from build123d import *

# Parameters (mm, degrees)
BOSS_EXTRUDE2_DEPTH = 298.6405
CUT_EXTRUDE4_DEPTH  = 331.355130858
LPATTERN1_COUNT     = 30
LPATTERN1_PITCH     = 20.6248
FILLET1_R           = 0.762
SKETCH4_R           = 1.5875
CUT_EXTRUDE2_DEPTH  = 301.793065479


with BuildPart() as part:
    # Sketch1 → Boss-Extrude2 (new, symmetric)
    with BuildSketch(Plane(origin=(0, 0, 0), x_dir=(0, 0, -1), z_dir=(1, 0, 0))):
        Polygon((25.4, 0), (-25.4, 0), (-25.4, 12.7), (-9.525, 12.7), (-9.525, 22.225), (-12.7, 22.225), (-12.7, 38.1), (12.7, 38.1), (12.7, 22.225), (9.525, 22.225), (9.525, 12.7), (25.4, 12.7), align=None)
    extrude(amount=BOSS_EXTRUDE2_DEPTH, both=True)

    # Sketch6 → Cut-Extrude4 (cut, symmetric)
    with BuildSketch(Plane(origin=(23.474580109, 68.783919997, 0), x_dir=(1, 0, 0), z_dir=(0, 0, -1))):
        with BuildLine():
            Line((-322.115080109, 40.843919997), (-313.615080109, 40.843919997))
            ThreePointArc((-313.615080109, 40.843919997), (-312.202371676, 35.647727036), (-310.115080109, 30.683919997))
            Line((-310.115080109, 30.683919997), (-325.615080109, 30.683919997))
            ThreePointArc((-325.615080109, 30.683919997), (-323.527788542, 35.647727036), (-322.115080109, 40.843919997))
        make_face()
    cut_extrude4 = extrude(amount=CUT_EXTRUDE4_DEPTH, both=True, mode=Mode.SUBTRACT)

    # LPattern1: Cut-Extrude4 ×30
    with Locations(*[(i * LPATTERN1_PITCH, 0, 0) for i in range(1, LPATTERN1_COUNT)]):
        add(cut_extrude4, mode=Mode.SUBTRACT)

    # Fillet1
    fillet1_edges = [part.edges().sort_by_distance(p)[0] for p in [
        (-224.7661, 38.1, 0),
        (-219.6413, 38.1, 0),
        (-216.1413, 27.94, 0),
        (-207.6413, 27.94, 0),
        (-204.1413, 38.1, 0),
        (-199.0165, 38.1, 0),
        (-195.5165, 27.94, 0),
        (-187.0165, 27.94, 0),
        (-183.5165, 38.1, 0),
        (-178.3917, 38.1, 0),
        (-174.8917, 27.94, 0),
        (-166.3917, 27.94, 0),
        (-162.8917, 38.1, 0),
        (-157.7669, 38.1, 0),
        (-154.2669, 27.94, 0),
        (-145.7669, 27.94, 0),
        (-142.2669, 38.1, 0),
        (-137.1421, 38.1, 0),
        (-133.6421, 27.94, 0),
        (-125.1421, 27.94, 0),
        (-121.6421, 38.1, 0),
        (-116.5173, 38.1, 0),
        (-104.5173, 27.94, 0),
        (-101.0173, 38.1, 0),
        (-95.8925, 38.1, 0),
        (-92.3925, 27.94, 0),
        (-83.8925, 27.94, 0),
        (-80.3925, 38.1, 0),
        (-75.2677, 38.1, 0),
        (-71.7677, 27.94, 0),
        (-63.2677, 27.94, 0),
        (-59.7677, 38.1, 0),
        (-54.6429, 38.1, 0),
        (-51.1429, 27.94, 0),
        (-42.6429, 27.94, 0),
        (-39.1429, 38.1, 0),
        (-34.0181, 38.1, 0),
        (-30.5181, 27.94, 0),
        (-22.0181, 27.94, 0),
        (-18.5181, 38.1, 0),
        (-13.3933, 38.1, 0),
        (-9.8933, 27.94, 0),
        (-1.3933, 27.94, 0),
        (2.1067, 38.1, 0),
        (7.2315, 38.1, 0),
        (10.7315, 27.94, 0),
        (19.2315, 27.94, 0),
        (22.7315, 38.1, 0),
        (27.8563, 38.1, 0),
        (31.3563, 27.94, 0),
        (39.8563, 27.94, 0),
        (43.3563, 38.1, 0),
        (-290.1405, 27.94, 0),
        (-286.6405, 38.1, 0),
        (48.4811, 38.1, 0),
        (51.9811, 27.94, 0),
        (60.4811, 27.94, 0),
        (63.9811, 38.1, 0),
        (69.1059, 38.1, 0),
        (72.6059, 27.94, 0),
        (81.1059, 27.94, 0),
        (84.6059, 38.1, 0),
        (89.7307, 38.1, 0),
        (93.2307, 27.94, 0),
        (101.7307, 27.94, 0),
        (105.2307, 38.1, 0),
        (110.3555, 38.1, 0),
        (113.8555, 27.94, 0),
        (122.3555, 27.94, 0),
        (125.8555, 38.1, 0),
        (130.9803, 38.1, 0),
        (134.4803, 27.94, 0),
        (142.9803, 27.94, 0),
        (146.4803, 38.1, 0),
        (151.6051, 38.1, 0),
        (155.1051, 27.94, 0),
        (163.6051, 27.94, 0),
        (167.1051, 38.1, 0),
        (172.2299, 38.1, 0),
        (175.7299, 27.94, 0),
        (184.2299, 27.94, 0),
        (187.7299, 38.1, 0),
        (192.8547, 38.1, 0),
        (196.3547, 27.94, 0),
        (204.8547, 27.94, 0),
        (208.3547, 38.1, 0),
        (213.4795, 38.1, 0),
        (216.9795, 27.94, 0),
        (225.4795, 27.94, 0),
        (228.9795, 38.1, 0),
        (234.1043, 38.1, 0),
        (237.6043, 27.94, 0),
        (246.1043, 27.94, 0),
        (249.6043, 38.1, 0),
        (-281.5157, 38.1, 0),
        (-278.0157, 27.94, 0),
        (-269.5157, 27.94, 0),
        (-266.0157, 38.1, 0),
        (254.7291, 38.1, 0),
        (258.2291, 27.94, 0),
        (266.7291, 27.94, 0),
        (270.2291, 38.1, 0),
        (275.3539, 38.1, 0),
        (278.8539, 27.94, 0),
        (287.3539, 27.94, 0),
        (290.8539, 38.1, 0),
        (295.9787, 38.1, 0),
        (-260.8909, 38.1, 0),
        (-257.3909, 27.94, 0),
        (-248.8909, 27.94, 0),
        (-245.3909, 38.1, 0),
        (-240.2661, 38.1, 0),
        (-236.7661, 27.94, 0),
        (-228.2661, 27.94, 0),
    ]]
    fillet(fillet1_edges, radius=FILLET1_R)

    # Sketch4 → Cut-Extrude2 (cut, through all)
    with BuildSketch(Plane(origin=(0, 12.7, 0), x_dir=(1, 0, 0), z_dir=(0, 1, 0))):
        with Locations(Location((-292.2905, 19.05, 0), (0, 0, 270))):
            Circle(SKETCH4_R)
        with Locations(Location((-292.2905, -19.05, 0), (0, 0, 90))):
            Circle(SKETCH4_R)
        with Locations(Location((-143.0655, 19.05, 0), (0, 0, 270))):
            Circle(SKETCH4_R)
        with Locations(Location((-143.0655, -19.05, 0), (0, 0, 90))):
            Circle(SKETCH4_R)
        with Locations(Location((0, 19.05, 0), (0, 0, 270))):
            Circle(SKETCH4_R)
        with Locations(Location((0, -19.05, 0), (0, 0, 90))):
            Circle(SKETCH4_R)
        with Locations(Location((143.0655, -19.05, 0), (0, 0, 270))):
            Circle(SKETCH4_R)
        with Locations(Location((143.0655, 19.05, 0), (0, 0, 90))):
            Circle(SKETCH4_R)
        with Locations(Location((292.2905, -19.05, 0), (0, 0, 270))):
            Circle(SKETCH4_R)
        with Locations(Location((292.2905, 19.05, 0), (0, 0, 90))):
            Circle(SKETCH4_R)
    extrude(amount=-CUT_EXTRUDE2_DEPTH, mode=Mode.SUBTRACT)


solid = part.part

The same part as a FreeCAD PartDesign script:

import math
import FreeCAD as App
import Part
import Sketcher
Q = App.Units.Quantity


def edges_at(feature, points):
    """Names of the edges that pass closest to the given points."""
    edges = feature.Shape.Edges
    near = lambda p: min(range(len(edges)), key=lambda i: edges[i].distToShape(Part.Vertex(*p))[0])
    return sorted({f"Edge{near(p) + 1}" for p in points})


def add_polygon(sketch, points):
    """Adds a closed chain of lines whose ends are joined by coincident constraints."""
    first, n = sketch.GeometryCount, len(points)
    for a, b in zip(points, points[1:] + points[:1]):
        sketch.addGeometry(Part.LineSegment(App.Vector(*a, 0), App.Vector(*b, 0)), False)
    for i in range(n):
        sketch.addConstraint(Sketcher.Constraint("Coincident", first + i, 2, first + (i + 1) % n, 1))

doc = App.newDocument("Part")
body = doc.addObject("PartDesign::Body", "Body")

sketch1 = doc.addObject("Sketcher::SketchObject", "Sketch")
body.addObject(sketch1)
sketch1.AttachmentSupport = (doc.YZ_Plane, [""])
sketch1.MapMode = "FlatFace"
add_polygon(sketch1, [(0, 25.4), (0, -25.4), (12.7, -25.4), (12.7, -9.525), (22.225, -9.525), (22.225, -12.7), (38.1, -12.7), (38.1, 12.7), (22.225, 12.7), (22.225, 9.525), (12.7, 9.525), (12.7, 25.4)])
sketch1.addConstraint(Sketcher.Constraint("Vertical", 0))
sketch1.addConstraint(Sketcher.Constraint("Horizontal", 1))
sketch1.addConstraint(Sketcher.Constraint("Vertical", 2))
sketch1.addConstraint(Sketcher.Constraint("Horizontal", 3))
sketch1.addConstraint(Sketcher.Constraint("Vertical", 4))
sketch1.addConstraint(Sketcher.Constraint("Horizontal", 5))
sketch1.addConstraint(Sketcher.Constraint("Vertical", 6))
sketch1.addConstraint(Sketcher.Constraint("Horizontal", 7))
sketch1.addConstraint(Sketcher.Constraint("Vertical", 8))
sketch1.addConstraint(Sketcher.Constraint("Horizontal", 9))
sketch1.addConstraint(Sketcher.Constraint("Vertical", 10))
sketch1.addConstraint(Sketcher.Constraint("Horizontal", 11))
sketch1.addConstraint(Sketcher.Constraint("Symmetric", 0, 2, 11, 2, -1, 1))
sketch1.addConstraint(Sketcher.Constraint("Symmetric", 4, 2, 7, 2, -1))
sketch1.addConstraint(Sketcher.Constraint("Symmetric", 2, 2, 9, 2, -1))
sketch1.addConstraint(Sketcher.Constraint("Equal", 7, 2))
sketch1.addConstraint(Sketcher.Constraint("DistanceY", 0, 2, 0, 1, Q("2 in")))
sketch1.addConstraint(Sketcher.Constraint("DistanceY", 6, 1, 6, 2, Q("1 in")))
sketch1.addConstraint(Sketcher.Constraint("DistanceX", 1, 1, 1, 2, Q("0.5 in")))
sketch1.addConstraint(Sketcher.Constraint("DistanceX", 2, 2, 5, 2, Q("1 in")))
sketch1.addConstraint(Sketcher.Constraint("DistanceX", 3, 1, 3, 2, Q("0.375 in")))
pad1 = doc.addObject("PartDesign::Pad", "Pad")
body.addObject(pad1)
pad1.Profile = sketch1
pad1.Length = Q("23.515 in")
pad1.Midplane = True

sketch2 = doc.addObject("Sketcher::SketchObject", "Sketch001")
body.addObject(sketch2)
sketch2.AttachmentSupport = (doc.XY_Plane, [""])
sketch2.MapMode = "FlatFace"
sketch2.addGeometry(Part.LineSegment(App.Vector(-290.1405, 27.94, 0), App.Vector(-298.6405, 27.94, 0)), False)
sketch2.addGeometry(Part.ArcOfCircle(Part.Circle(App.Vector(-338.477184, 19.899587, 0), App.Vector(0, 0, 1), 40.64), math.radians(11.410957), math.radians(26.605492)), False)
sketch2.addGeometry(Part.LineSegment(App.Vector(-302.1405, 38.1, 0), App.Vector(-286.6405, 38.1, 0)), False)
sketch2.addGeometry(Part.ArcOfCircle(Part.Circle(App.Vector(-250.303816, 19.899587, 0), App.Vector(0, 0, 1), 40.64), math.radians(153.394508), math.radians(168.589043)), False)
sketch2.addConstraint(Sketcher.Constraint("Coincident", 0, 2, 1, 1))
sketch2.addConstraint(Sketcher.Constraint("Coincident", 1, 2, 2, 1))
sketch2.addConstraint(Sketcher.Constraint("Coincident", 2, 2, 3, 1))
sketch2.addConstraint(Sketcher.Constraint("Coincident", 3, 2, 0, 1))
sketch2.addConstraint(Sketcher.Constraint("Horizontal", 0))
sketch2.addConstraint(Sketcher.Constraint("Horizontal", 2))
sketch2.addConstraint(Sketcher.Constraint("Equal", 1, 3))
sketch2.addConstraint(Sketcher.Constraint("Horizontal", 1, 3, 3, 3))
sketch2.addConstraint(Sketcher.Constraint("Radius", 1, Q("1.6 in")))
sketch2.addConstraint(Sketcher.Constraint("DistanceY", -1, 1, 0, 2, Q("1.1 in")))
sketch2.addConstraint(Sketcher.Constraint("DistanceY", -1, 1, 1, 2, Q("1.5 in")))
sketch2.addConstraint(Sketcher.Constraint("DistanceX", 0, 2, 0, 1, Q("8.5 mm")))
sketch2.addConstraint(Sketcher.Constraint("DistanceX", 2, 1, 2, 2, Q("15.5 mm")))
sketch2.addConstraint(Sketcher.Constraint("DistanceX", 0, 2, -1, 1, Q("11.7575 in")))
pocket1 = doc.addObject("PartDesign::Pocket", "Pocket")
body.addObject(pocket1)
pocket1.Profile = sketch2
pocket1.Length = 662.710262
pocket1.Midplane = True
doc.recompute()

linearpattern = doc.addObject("PartDesign::LinearPattern", "LinearPattern")
body.addObject(linearpattern)
linearpattern.Originals = [pocket1]
linearpattern.Direction = (doc.X_Axis, [""])
linearpattern.Mode = "offset"
linearpattern.Offset = Q("0.812 in")
linearpattern.Occurrences = 30
body.Tip = linearpattern
doc.recompute()

fillet = doc.addObject("PartDesign::Fillet", "Fillet")
body.addObject(fillet)
fillet.Base = (linearpattern, edges_at(linearpattern, [
    (-224.766, 38.1, 0),
    (-219.641, 38.1, 0),
    (-216.141, 27.94, 0),
    (-207.641, 27.94, 0),
    (-204.141, 38.1, 0),
    (-199.017, 38.1, 0),
    (-195.517, 27.94, 0),
    (-187.017, 27.94, 0),
    (-183.517, 38.1, 0),
    (-178.392, 38.1, 0),
    (-174.892, 27.94, 0),
    (-166.392, 27.94, 0),
    (-162.892, 38.1, 0),
    (-157.767, 38.1, 0),
    (-154.267, 27.94, 0),
    (-145.767, 27.94, 0),
    (-142.267, 38.1, 0),
    (-137.142, 38.1, 0),
    (-133.642, 27.94, 0),
    (-125.142, 27.94, 0),
    (-121.642, 38.1, 0),
    (-116.517, 38.1, 0),
    (-104.517, 27.94, 0),
    (-101.017, 38.1, 0),
    (-95.892, 38.1, 0),
    (-92.392, 27.94, 0),
    (-83.892, 27.94, 0),
    (-80.392, 38.1, 0),
    (-75.268, 38.1, 0),
    (-71.768, 27.94, 0),
    (-63.268, 27.94, 0),
    (-59.768, 38.1, 0),
    (-54.643, 38.1, 0),
    (-51.143, 27.94, 0),
    (-42.643, 27.94, 0),
    (-39.143, 38.1, 0),
    (-34.018, 38.1, 0),
    (-30.518, 27.94, 0),
    (-22.018, 27.94, 0),
    (-18.518, 38.1, 0),
    (-13.393, 38.1, 0),
    (-9.893, 27.94, 0),
    (-1.393, 27.94, 0),
    (2.107, 38.1, 0),
    (7.231, 38.1, 0),
    (10.732, 27.94, 0),
    (19.232, 27.94, 0),
    (22.732, 38.1, 0),
    (27.856, 38.1, 0),
    (31.356, 27.94, 0),
    (39.856, 27.94, 0),
    (43.356, 38.1, 0),
    (-290.14, 27.94, 0),
    (-286.64, 38.1, 0),
    (48.481, 38.1, 0),
    (51.981, 27.94, 0),
    (60.481, 27.94, 0),
    (63.981, 38.1, 0),
    (69.106, 38.1, 0),
    (72.606, 27.94, 0),
    (81.106, 27.94, 0),
    (84.606, 38.1, 0),
    (89.731, 38.1, 0),
    (93.231, 27.94, 0),
    (101.731, 27.94, 0),
    (105.231, 38.1, 0),
    (110.356, 38.1, 0),
    (113.856, 27.94, 0),
    (122.356, 27.94, 0),
    (125.856, 38.1, 0),
    (130.98, 38.1, 0),
    (134.48, 27.94, 0),
    (142.98, 27.94, 0),
    (146.48, 38.1, 0),
    (151.605, 38.1, 0),
    (155.105, 27.94, 0),
    (163.605, 27.94, 0),
    (167.105, 38.1, 0),
    (172.23, 38.1, 0),
    (175.73, 27.94, 0),
    (184.23, 27.94, 0),
    (187.73, 38.1, 0),
    (192.855, 38.1, 0),
    (196.355, 27.94, 0),
    (204.855, 27.94, 0),
    (208.355, 38.1, 0),
    (213.48, 38.1, 0),
    (216.98, 27.94, 0),
    (225.48, 27.94, 0),
    (228.98, 38.1, 0),
    (234.104, 38.1, 0),
    (237.604, 27.94, 0),
    (246.104, 27.94, 0),
    (249.604, 38.1, 0),
    (-281.516, 38.1, 0),
    (-278.016, 27.94, 0),
    (-269.516, 27.94, 0),
    (-266.016, 38.1, 0),
    (254.729, 38.1, 0),
    (258.229, 27.94, 0),
    (266.729, 27.94, 0),
    (270.229, 38.1, 0),
    (275.354, 38.1, 0),
    (278.854, 27.94, 0),
    (287.354, 27.94, 0),
    (290.854, 38.1, 0),
    (295.979, 38.1, 0),
    (-260.891, 38.1, 0),
    (-257.391, 27.94, 0),
    (-248.891, 27.94, 0),
    (-245.391, 38.1, 0),
    (-240.266, 38.1, 0),
    (-236.766, 27.94, 0),
    (-228.266, 27.94, 0),
]))
fillet.Radius = Q("0.03 in")

sketch3 = doc.addObject("Sketcher::SketchObject", "Sketch002")
body.addObject(sketch3)
sketch3.AttachmentSupport = (doc.XZ_Plane, [""])
sketch3.MapMode = "FlatFace"
sketch3.AttachmentOffset = App.Placement(App.Vector(0, 0, -0.5 * 25.4), App.Rotation())
sketch3.addGeometry(Part.Circle(App.Vector(-292.2905, -19.05, 0), App.Vector(0, 0, 1), 1.5875), False)
sketch3.addGeometry(Part.Circle(App.Vector(-292.2905, 19.05, 0), App.Vector(0, 0, 1), 1.5875), False)
sketch3.addGeometry(Part.Circle(App.Vector(-143.0655, -19.05, 0), App.Vector(0, 0, 1), 1.5875), False)
sketch3.addGeometry(Part.Circle(App.Vector(-143.0655, 19.05, 0), App.Vector(0, 0, 1), 1.5875), False)
sketch3.addGeometry(Part.Circle(App.Vector(0, -19.05, 0), App.Vector(0, 0, 1), 1.5875), False)
sketch3.addGeometry(Part.Circle(App.Vector(0, 19.05, 0), App.Vector(0, 0, 1), 1.5875), False)
sketch3.addGeometry(Part.Circle(App.Vector(143.0655, 19.05, 0), App.Vector(0, 0, 1), 1.5875), False)
sketch3.addGeometry(Part.Circle(App.Vector(143.0655, -19.05, 0), App.Vector(0, 0, 1), 1.5875), False)
sketch3.addGeometry(Part.Circle(App.Vector(292.2905, 19.05, 0), App.Vector(0, 0, 1), 1.5875), False)
sketch3.addGeometry(Part.Circle(App.Vector(292.2905, -19.05, 0), App.Vector(0, 0, 1), 1.5875), False)
sketch3.addConstraint(Sketcher.Constraint("Equal", 0, 1))
sketch3.addConstraint(Sketcher.Constraint("Equal", 1, 2))
sketch3.addConstraint(Sketcher.Constraint("Equal", 2, 3))
sketch3.addConstraint(Sketcher.Constraint("Equal", 3, 4))
sketch3.addConstraint(Sketcher.Constraint("Equal", 4, 5))
sketch3.addConstraint(Sketcher.Constraint("Equal", 5, 6))
sketch3.addConstraint(Sketcher.Constraint("Equal", 6, 7))
sketch3.addConstraint(Sketcher.Constraint("Equal", 7, 8))
sketch3.addConstraint(Sketcher.Constraint("Equal", 8, 9))
sketch3.addConstraint(Sketcher.Constraint("Symmetric", 4, 3, 5, 3, -1, 1))
sketch3.addConstraint(Sketcher.Constraint("Symmetric", 2, 3, 6, 3, -1, 1))
sketch3.addConstraint(Sketcher.Constraint("Symmetric", 3, 3, 7, 3, -1, 1))
sketch3.addConstraint(Sketcher.Constraint("Symmetric", 0, 3, 8, 3, -1, 1))
sketch3.addConstraint(Sketcher.Constraint("Symmetric", 1, 3, 9, 3, -1, 1))
sketch3.addConstraint(Sketcher.Constraint("Symmetric", 3, 3, 6, 3, -2))
sketch3.addConstraint(Sketcher.Constraint("Symmetric", 1, 3, 8, 3, -2))
sketch3.addConstraint(Sketcher.Constraint("PointOnObject", 4, 3, -2))
sketch3.addConstraint(Sketcher.Constraint("Horizontal", 0, 3, 2, 3))
sketch3.addConstraint(Sketcher.Constraint("Horizontal", 2, 3, 4, 3))
sketch3.addConstraint(Sketcher.Constraint("Diameter", 0, Q("0.125 in")))
sketch3.addConstraint(Sketcher.Constraint("DistanceY", 0, 3, 1, 3, Q("1.5 in")))
sketch3.addConstraint(Sketcher.Constraint("DistanceX", 1, 3, 6, 3, Q("17.14 in")))
sketch3.addConstraint(Sketcher.Constraint("DistanceX", 0, 3, 2, 3, Q("5.875 in")))
pocket2 = doc.addObject("PartDesign::Pocket", "Pocket001")
body.addObject(pocket2)
pocket2.Profile = sketch3
pocket2.Type = "ThroughAll"
pocket2.Reversed = True

doc.recompute()
